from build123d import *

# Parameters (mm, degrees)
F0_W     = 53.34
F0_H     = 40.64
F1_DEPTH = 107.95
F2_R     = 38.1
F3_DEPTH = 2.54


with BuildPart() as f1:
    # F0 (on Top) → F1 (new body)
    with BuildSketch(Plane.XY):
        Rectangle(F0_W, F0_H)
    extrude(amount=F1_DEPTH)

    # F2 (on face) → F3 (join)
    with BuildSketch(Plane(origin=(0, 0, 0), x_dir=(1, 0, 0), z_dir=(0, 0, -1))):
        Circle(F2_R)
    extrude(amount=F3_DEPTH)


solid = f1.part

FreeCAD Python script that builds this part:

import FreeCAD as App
import Part
import Sketcher

V = App.Vector
Q = App.Units.Quantity

doc = App.newDocument("Part")
params = doc.addObject("Spreadsheet::Sheet", "Params")
for row, (alias, value) in enumerate([
    ("sketch1_width", "2.1 in"),
    ("sketch1_height", "1.6 in"),
    ("pad1_length", "4.25 in"),
    ("sketch2_diameter", "3 in"),
    ("pad2_length", "0.1 in"),
], start=1):
    params.set(f"A{row}", alias)
    params.set(f"B{row}", "=" + value)
    params.setAlias(f"B{row}", alias)

body = doc.addObject("PartDesign::Body", "Body")

sketch1 = body.newObject("Sketcher::SketchObject", "Sketch")
sketch1.AttachmentSupport = (doc.getObject("XY_Plane"), [""])
sketch1.MapMode = "FlatFace"
sketch1.addGeometry(Part.LineSegment(V(-26.67, 20.32, 0), V(-26.67, -20.32, 0)), False)
sketch1.addGeometry(Part.LineSegment(V(-26.67, -20.32, 0), V(26.67, -20.32, 0)), False)
sketch1.addGeometry(Part.LineSegment(V(26.67, -20.32, 0), V(26.67, 20.32, 0)), False)
sketch1.addGeometry(Part.LineSegment(V(26.67, 20.32, 0), V(-26.67, 20.32, 0)), False)
sketch1.addConstraint(Sketcher.Constraint("Coincident", 0, 2, 1, 1))
sketch1.addConstraint(Sketcher.Constraint("Coincident", 1, 2, 2, 1))
sketch1.addConstraint(Sketcher.Constraint("Coincident", 2, 2, 3, 1))
sketch1.addConstraint(Sketcher.Constraint("Coincident", 3, 2, 0, 1))
sketch1.addConstraint(Sketcher.Constraint("Vertical", 0))
sketch1.addConstraint(Sketcher.Constraint("Horizontal", 1))
sketch1.addConstraint(Sketcher.Constraint("Vertical", 2))
sketch1.addConstraint(Sketcher.Constraint("Horizontal", 3))
sketch1.addConstraint(Sketcher.Constraint("Symmetric", 0, 2, 2, 2, -1, 1))
sketch1.addConstraint(Sketcher.Constraint("DistanceX", 1, 1, 1, 2, Q("2.1 in")))
sketch1.addConstraint(Sketcher.Constraint("DistanceY", 0, 2, 0, 1, Q("1.6 in")))
sketch1.setExpression("Constraints[9]", "Params.sketch1_width")
sketch1.setExpression("Constraints[10]", "Params.sketch1_height")
pad1 = body.newObject("PartDesign::Pad", "Pad")
pad1.Profile = sketch1
pad1.setExpression("Length", "Params.pad1_length")

sketch2 = body.newObject("Sketcher::SketchObject", "Sketch001")
sketch2.AttachmentSupport = (doc.getObject("XY_Plane"), [""])
sketch2.MapMode = "FlatFace"
sketch2.addGeometry(Part.Circle(V(0, 0, 0), V(0, 0, 1), 38.1), False)
sketch2.addConstraint(Sketcher.Constraint("Coincident", 0, 3, -1, 1))
sketch2.addConstraint(Sketcher.Constraint("Diameter", 0, Q("3 in")))
sketch2.setExpression("Constraints[1]", "Params.sketch2_diameter")
pad2 = body.newObject("PartDesign::Pad", "Pad001")
pad2.Profile = sketch2
pad2.setExpression("Length", "Params.pad2_length")
pad2.Reversed = True

doc.recompute()
